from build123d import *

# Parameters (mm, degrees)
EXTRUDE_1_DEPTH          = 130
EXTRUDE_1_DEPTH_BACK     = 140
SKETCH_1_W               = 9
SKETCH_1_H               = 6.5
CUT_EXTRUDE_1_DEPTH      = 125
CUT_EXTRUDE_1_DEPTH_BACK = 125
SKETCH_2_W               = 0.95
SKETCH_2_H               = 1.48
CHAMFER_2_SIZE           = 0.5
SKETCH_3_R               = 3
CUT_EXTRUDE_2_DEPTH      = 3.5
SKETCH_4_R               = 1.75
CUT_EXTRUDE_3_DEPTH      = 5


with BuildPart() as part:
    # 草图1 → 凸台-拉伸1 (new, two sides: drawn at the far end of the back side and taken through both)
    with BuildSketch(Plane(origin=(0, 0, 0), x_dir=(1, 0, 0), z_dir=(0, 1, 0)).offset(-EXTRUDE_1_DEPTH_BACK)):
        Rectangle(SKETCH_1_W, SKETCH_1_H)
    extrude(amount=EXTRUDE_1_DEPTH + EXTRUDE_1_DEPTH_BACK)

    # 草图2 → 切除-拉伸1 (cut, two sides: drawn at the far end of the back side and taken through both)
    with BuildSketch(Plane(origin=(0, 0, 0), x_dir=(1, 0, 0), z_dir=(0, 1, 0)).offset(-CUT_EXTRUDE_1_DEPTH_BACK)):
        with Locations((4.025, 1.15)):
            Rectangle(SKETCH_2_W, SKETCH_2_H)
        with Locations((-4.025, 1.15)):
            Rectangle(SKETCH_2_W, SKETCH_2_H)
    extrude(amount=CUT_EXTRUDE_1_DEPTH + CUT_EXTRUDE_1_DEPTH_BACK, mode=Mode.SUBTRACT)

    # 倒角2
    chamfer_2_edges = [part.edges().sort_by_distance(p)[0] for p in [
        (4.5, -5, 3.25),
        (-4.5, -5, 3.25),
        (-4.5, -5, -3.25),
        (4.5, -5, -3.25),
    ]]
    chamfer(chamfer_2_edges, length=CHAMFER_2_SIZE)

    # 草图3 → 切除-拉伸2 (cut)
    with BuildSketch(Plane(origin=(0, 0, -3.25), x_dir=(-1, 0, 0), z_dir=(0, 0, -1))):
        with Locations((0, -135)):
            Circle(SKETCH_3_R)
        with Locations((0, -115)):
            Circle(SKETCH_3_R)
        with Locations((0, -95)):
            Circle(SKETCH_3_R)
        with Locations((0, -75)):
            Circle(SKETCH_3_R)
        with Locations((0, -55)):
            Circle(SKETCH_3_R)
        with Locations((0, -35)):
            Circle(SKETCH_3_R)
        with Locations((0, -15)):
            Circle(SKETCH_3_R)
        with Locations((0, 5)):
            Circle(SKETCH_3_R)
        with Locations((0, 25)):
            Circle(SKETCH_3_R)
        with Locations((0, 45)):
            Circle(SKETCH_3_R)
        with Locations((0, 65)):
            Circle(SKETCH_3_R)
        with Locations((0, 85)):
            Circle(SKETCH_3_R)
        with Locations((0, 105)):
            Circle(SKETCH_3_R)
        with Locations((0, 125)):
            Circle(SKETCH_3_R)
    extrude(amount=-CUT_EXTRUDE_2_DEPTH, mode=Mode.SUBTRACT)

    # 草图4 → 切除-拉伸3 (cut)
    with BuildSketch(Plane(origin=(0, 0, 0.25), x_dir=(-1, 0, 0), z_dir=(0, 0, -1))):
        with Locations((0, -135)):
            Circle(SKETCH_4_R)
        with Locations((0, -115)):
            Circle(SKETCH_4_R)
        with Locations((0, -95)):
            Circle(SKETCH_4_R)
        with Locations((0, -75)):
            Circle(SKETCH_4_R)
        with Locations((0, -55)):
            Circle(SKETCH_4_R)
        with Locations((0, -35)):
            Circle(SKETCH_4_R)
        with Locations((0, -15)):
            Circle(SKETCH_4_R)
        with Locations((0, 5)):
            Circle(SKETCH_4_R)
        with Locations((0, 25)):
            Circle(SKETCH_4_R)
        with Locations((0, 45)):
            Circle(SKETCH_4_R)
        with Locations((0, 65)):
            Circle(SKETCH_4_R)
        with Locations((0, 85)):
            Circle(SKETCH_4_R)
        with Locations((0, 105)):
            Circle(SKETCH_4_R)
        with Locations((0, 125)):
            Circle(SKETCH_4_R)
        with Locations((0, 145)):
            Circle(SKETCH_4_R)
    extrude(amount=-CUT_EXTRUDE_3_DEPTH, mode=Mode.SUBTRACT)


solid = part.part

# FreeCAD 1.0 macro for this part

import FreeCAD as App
import Part
import Sketcher


def edges_at(feature, points):
    """Names of the edges that pass closest to the given points."""
    edges = feature.Shape.Edges
    near = lambda p: min(range(len(edges)), key=lambda i: edges[i].distToShape(Part.Vertex(*p))[0])
    return sorted({f"Edge{near(p) + 1}" for p in points})


def add_polygon(sketch, points):
    """Adds a closed chain of lines whose ends are joined by coincident constraints."""
    first, n = sketch.GeometryCount, len(points)
    for a, b in zip(points, points[1:] + points[:1]):
        sketch.addGeometry(Part.LineSegment(App.Vector(*a, 0), App.Vector(*b, 0)), False)
    for i in range(n):
        sketch.addConstraint(Sketcher.Constraint("Coincident", first + i, 2, first + (i + 1) % n, 1))

doc = App.newDocument("Part")
body = doc.addObject("PartDesign::Body", "Body")

sketch1 = body.newObject("Sketcher::SketchObject", "Sketch")
sketch1.AttachmentSupport = (doc.getObject("XZ_Plane"), [""])
sketch1.MapMode = "FlatFace"
add_polygon(sketch1, [(-4, -3), (-4, 3), (4, 3), (4, -3)])
sketch1.addConstraint(Sketcher.Constraint("Vertical", 0))
sketch1.addConstraint(Sketcher.Constraint("Horizontal", 1))
sketch1.addConstraint(Sketcher.Constraint("Vertical", 2))
sketch1.addConstraint(Sketcher.Constraint("Horizontal", 3))
sketch1.addConstraint(Sketcher.Constraint("Symmetric", 0, 2, 2, 2, -1, 1))
sketch1.addConstraint(Sketcher.Constraint("DistanceX", 1, 1, 1, 2, 9.0))
sketch1.addConstraint(Sketcher.Constraint("DistanceY", 0, 1, 0, 2, 6.5))
pad1 = body.newObject("PartDesign::Pad", "Pad")
pad1.Profile = sketch1
pad1.Type = "TwoLengths"
pad1.Length = 130
pad1.Length2 = 140
pad1.Reversed = True

sketch2 = body.newObject("Sketcher::SketchObject", "Sketch001")
sketch2.AttachmentSupport = (doc.getObject("XZ_Plane"), [""])
sketch2.MapMode = "FlatFace"
add_polygon(sketch2, [(3.5, -1.9), (3.5, -0.4), (4.5, -0.4), (4.5, -1.9)])
add_polygon(sketch2, [(-4.5, -1.9), (-4.5, -0.4), (-3.5, -0.4), (-3.5, -1.9)])
sketch2.addConstraint(Sketcher.Constraint("Vertical", 0))
sketch2.addConstraint(Sketcher.Constraint("Horizontal", 1))
sketch2.addConstraint(Sketcher.Constraint("Vertical", 2))
sketch2.addConstraint(Sketcher.Constraint("Horizontal", 3))
sketch2.addConstraint(Sketcher.Constraint("Vertical", 4))
sketch2.addConstraint(Sketcher.Constraint("Horizontal", 5))
sketch2.addConstraint(Sketcher.Constraint("Vertical", 6))
sketch2.addConstraint(Sketcher.Constraint("Horizontal", 7))
sketch2.addConstraint(Sketcher.Constraint("Symmetric", 1, 2, 4, 2, -2))
sketch2.addConstraint(Sketcher.Constraint("Symmetric", 3, 2, 6, 2, -2))
sketch2.addConstraint(Sketcher.Constraint("DistanceX", 4, 2, 1, 2, 9.0))
sketch2.addConstraint(Sketcher.Constraint("DistanceX", 1, 1, 1, 2, 0.95))
sketch2.addConstraint(Sketcher.Constraint("DistanceY", 0, 1, 0, 2, 1.48))
sketch2.addConstraint(Sketcher.Constraint("DistanceY", 0, 2, -1, 1, 0.41))
pocket1 = body.newObject("PartDesign::Pocket", "Pocket")
pocket1.Profile = sketch2
pocket1.Type = "TwoLengths"
pocket1.Length = 125
pocket1.Length2 = 125
doc.recompute()

chamfer = body.newObject("PartDesign::Chamfer", "Chamfer")
chamfer.Base = (pocket1, edges_at(pocket1, [
    (4.5, -5, 3.25),
    (-4.5, -5, 3.25),
    (-4.5, -5, -3.25),
    (4.5, -5, -3.25),
]))
chamfer.Size = 0.5

sketch3 = body.newObject("Sketcher::SketchObject", "Sketch002")
sketch3.AttachmentSupport = (doc.getObject("XY_Plane"), [""])
sketch3.MapMode = "FlatFace"
sketch3.AttachmentOffset = App.Placement(App.Vector(0, 0, -3.25), App.Rotation())
sketch3.addGeometry(Part.Circle(App.Vector(0, -135, 0), App.Vector(0, 0, 1), 3), False)
sketch3.addGeometry(Part.Circle(App.Vector(0, -115, 0), App.Vector(0, 0, 1), 3), False)
sketch3.addGeometry(Part.Circle(App.Vector(0, -95, 0), App.Vector(0, 0, 1), 3), False)
sketch3.addGeometry(Part.Circle(App.Vector(0, -75, 0), App.Vector(0, 0, 1), 3), False)
sketch3.addGeometry(Part.Circle(App.Vector(0, -55, 0), App.Vector(0, 0, 1), 3), False)
sketch3.addGeometry(Part.Circle(App.Vector(0, -35, 0), App.Vector(0, 0, 1), 3), False)
sketch3.addGeometry(Part.Circle(App.Vector(0, -15, 0), App.Vector(0, 0, 1), 3), False)
sketch3.addGeometry(Part.Circle(App.Vector(0, 5, 0), App.Vector(0, 0, 1), 3), False)
sketch3.addGeometry(Part.Circle(App.Vector(0, 25, 0), App.Vector(0, 0, 1), 3), False)
sketch3.addGeometry(Part.Circle(App.Vector(0, 45, 0), App.Vector(0, 0, 1), 3), False)
sketch3.addGeometry(Part.Circle(App.Vector(0, 65, 0), App.Vector(0, 0, 1), 3), False)
sketch3.addGeometry(Part.Circle(App.Vector(0, 85, 0), App.Vector(0, 0, 1), 3), False)
sketch3.addGeometry(Part.Circle(App.Vector(0, 105, 0), App.Vector(0, 0, 1), 3), False)
sketch3.addGeometry(Part.Circle(App.Vector(0, 125, 0), App.Vector(0, 0, 1), 3), False)
sketch3.addConstraint(Sketcher.Constraint("Equal", 0, 1))
sketch3.addConstraint(Sketcher.Constraint("Equal", 1, 2))
sketch3.addConstraint(Sketcher.Constraint("Equal", 2, 3))
sketch3.addConstraint(Sketcher.Constraint("Equal", 3, 4))
sketch3.addConstraint(Sketcher.Constraint("Equal", 4, 5))
sketch3.addConstraint(Sketcher.Constraint("Equal", 5, 6))
sketch3.addConstraint(Sketcher.Constraint("Equal", 6, 7))
sketch3.addConstraint(Sketcher.Constraint("Equal", 7, 8))
sketch3.addConstraint(Sketcher.Constraint("Equal", 8, 9))
sketch3.addConstraint(Sketcher.Constraint("Equal", 9, 10))
sketch3.addConstraint(Sketcher.Constraint("Equal", 10, 11))
sketch3.addConstraint(Sketcher.Constraint("Equal", 11, 12))
sketch3.addConstraint(Sketcher.Constraint("Equal", 12, 13))
sketch3.addConstraint(Sketcher.Constraint("PointOnObject", 0, 3, -2))
sketch3.addConstraint(Sketcher.Constraint("PointOnObject", 1, 3, -2))
sketch3.addConstraint(Sketcher.Constraint("PointOnObject", 2, 3, -2))
sketch3.addConstraint(Sketcher.Constraint("PointOnObject", 3, 3, -2))
sketch3.addConstraint(Sketcher.Constraint("PointOnObject", 4, 3, -2))
sketch3.addConstraint(Sketcher.Constraint("PointOnObject", 5, 3, -2))
sketch3.addConstraint(Sketcher.Constraint("PointOnObject", 6, 3, -2))
sketch3.addConstraint(Sketcher.Constraint("PointOnObject", 7, 3, -2))
sketch3.addConstraint(Sketcher.Constraint("PointOnObject", 8, 3, -2))
sketch3.addConstraint(Sketcher.Constraint("PointOnObject", 9, 3, -2))
sketch3.addConstraint(Sketcher.Constraint("PointOnObject", 10, 3, -2))
sketch3.addConstraint(Sketcher.Constraint("PointOnObject", 11, 3, -2))
sketch3.addConstraint(Sketcher.Constraint("PointOnObject", 12, 3, -2))
sketch3.addConstraint(Sketcher.Constraint("PointOnObject", 13, 3, -2))
sketch3.addConstraint(Sketcher.Constraint("Diameter", 0, 6.0))
sketch3.addConstraint(Sketcher.Constraint("DistanceY", 0, 3, -1, 1, 135.0))
sketch3.addConstraint(Sketcher.Constraint("DistanceY", 1, 3, -1, 1, 115.0))
sketch3.addConstraint(Sketcher.Constraint("DistanceY", 2, 3, -1, 1, 95.0))
sketch3.addConstraint(Sketcher.Constraint("DistanceY", 3, 3, -1, 1, 75.0))
sketch3.addConstraint(Sketcher.Constraint("DistanceY", 4, 3, -1, 1, 55.0))
sketch3.addConstraint(Sketcher.Constraint("DistanceY", 5, 3, -1, 1, 35.0))
sketch3.addConstraint(Sketcher.Constraint("DistanceY", 6, 3, -1, 1, 15.0))
sketch3.addConstraint(Sketcher.Constraint("DistanceY", -1, 1, 7, 3, 5.0))
sketch3.addConstraint(Sketcher.Constraint("DistanceY", -1, 1, 8, 3, 25.0))
sketch3.addConstraint(Sketcher.Constraint("DistanceY", -1, 1, 9, 3, 45.0))
sketch3.addConstraint(Sketcher.Constraint("DistanceY", -1, 1, 10, 3, 65.0))
sketch3.addConstraint(Sketcher.Constraint("DistanceY", -1, 1, 11, 3, 85.0))
sketch3.addConstraint(Sketcher.Constraint("DistanceY", -1, 1, 12, 3, 105.0))
sketch3.addConstraint(Sketcher.Constraint("DistanceY", -1, 1, 13, 3, 125.0))
pocket2 = body.newObject("PartDesign::Pocket", "Pocket001")
pocket2.Profile = sketch3
pocket2.Length = 3.5
pocket2.Reversed = True

sketch4 = body.newObject("Sketcher::SketchObject", "Sketch003")
sketch4.AttachmentSupport = (doc.getObject("XY_Plane"), [""])
sketch4.MapMode = "FlatFace"
sketch4.AttachmentOffset = App.Placement(App.Vector(0, 0, 0.25), App.Rotation())
sketch4.addGeometry(Part.Circle(App.Vector(0, -135, 0), App.Vector(0, 0, 1), 1.8), False)
sketch4.addGeometry(Part.Circle(App.Vector(0, -115, 0), App.Vector(0, 0, 1), 1.8), False)
sketch4.addGeometry(Part.Circle(App.Vector(0, -95, 0), App.Vector(0, 0, 1), 1.8), False)
sketch4.addGeometry(Part.Circle(App.Vector(0, -75, 0), App.Vector(0, 0, 1), 1.8), False)
sketch4.addGeometry(Part.Circle(App.Vector(0, -55, 0), App.Vector(0, 0, 1), 1.8), False)
sketch4.addGeometry(Part.Circle(App.Vector(0, -35, 0), App.Vector(0, 0, 1), 1.8), False)
sketch4.addGeometry(Part.Circle(App.Vector(0, -15, 0), App.Vector(0, 0, 1), 1.8), False)
sketch4.addGeometry(Part.Circle(App.Vector(0, 5, 0), App.Vector(0, 0, 1), 1.8), False)
sketch4.addGeometry(Part.Circle(App.Vector(0, 25, 0), App.Vector(0, 0, 1), 1.8), False)
sketch4.addGeometry(Part.Circle(App.Vector(0, 45, 0), App.Vector(0, 0, 1), 1.8), False)
sketch4.addGeometry(Part.Circle(App.Vector(0, 65, 0), App.Vector(0, 0, 1), 1.8), False)
sketch4.addGeometry(Part.Circle(App.Vector(0, 85, 0), App.Vector(0, 0, 1), 1.8), False)
sketch4.addGeometry(Part.Circle(App.Vector(0, 105, 0), App.Vector(0, 0, 1), 1.8), False)
sketch4.addGeometry(Part.Circle(App.Vector(0, 125, 0), App.Vector(0, 0, 1), 1.8), False)
sketch4.addGeometry(Part.Circle(App.Vector(0, 145, 0), App.Vector(0, 0, 1), 1.8), False)
sketch4.addConstraint(Sketcher.Constraint("Equal", 0, 1))
sketch4.addConstraint(Sketcher.Constraint("Equal", 1, 2))
sketch4.addConstraint(Sketcher.Constraint("Equal", 2, 3))
sketch4.addConstraint(Sketcher.Constraint("Equal", 3, 4))
sketch4.addConstraint(Sketcher.Constraint("Equal", 4, 5))
sketch4.addConstraint(Sketcher.Constraint("Equal", 5, 6))
sketch4.addConstraint(Sketcher.Constraint("Equal", 6, 7))
sketch4.addConstraint(Sketcher.Constraint("Equal", 7, 8))
sketch4.addConstraint(Sketcher.Constraint("Equal", 8, 9))
sketch4.addConstraint(Sketcher.Constraint("Equal", 9, 10))
sketch4.addConstraint(Sketcher.Constraint("Equal", 10, 11))
sketch4.addConstraint(Sketcher.Constraint("Equal", 11, 12))
sketch4.addConstraint(Sketcher.Constraint("Equal", 12, 13))
sketch4.addConstraint(Sketcher.Constraint("Equal", 13, 14))
sketch4.addConstraint(Sketcher.Constraint("PointOnObject", 0, 3, -2))
sketch4.addConstraint(Sketcher.Constraint("PointOnObject", 1, 3, -2))
sketch4.addConstraint(Sketcher.Constraint("PointOnObject", 2, 3, -2))
sketch4.addConstraint(Sketcher.Constraint("PointOnObject", 3, 3, -2))
sketch4.addConstraint(Sketcher.Constraint("PointOnObject", 4, 3, -2))
sketch4.addConstraint(Sketcher.Constraint("PointOnObject", 5, 3, -2))
sketch4.addConstraint(Sketcher.Constraint("PointOnObject", 6, 3, -2))
sketch4.addConstraint(Sketcher.Constraint("PointOnObject", 7, 3, -2))
sketch4.addConstraint(Sketcher.Constraint("PointOnObject", 8, 3, -2))
sketch4.addConstraint(Sketcher.Constraint("PointOnObject", 9, 3, -2))
sketch4.addConstraint(Sketcher.Constraint("PointOnObject", 10, 3, -2))
sketch4.addConstraint(Sketcher.Constraint("PointOnObject", 11, 3, -2))
sketch4.addConstraint(Sketcher.Constraint("PointOnObject", 12, 3, -2))
sketch4.addConstraint(Sketcher.Constraint("PointOnObject", 13, 3, -2))
sketch4.addConstraint(Sketcher.Constraint("PointOnObject", 14, 3, -2))
sketch4.addConstraint(Sketcher.Constraint("Diameter", 0, 3.5))
sketch4.addConstraint(Sketcher.Constraint("DistanceY", 0, 3, -1, 1, 135.0))
sketch4.addConstraint(Sketcher.Constraint("DistanceY", 1, 3, -1, 1, 115.0))
sketch4.addConstraint(Sketcher.Constraint("DistanceY", 2, 3, -1, 1, 95.0))
sketch4.addConstraint(Sketcher.Constraint("DistanceY", 3, 3, -1, 1, 75.0))
sketch4.addConstraint(Sketcher.Constraint("DistanceY", 4, 3, -1, 1, 55.0))
sketch4.addConstraint(Sketcher.Constraint("DistanceY", 5, 3, -1, 1, 35.0))
sketch4.addConstraint(Sketcher.Constraint("DistanceY", 6, 3, -1, 1, 15.0))
sketch4.addConstraint(Sketcher.Constraint("DistanceY", -1, 1, 7, 3, 5.0))
sketch4.addConstraint(Sketcher.Constraint("DistanceY", -1, 1, 8, 3, 25.0))
sketch4.addConstraint(Sketcher.Constraint("DistanceY", -1, 1, 9, 3, 45.0))
sketch4.addConstraint(Sketcher.Constraint("DistanceY", -1, 1, 10, 3, 65.0))
sketch4.addConstraint(Sketcher.Constraint("DistanceY", -1, 1, 11, 3, 85.0))
sketch4.addConstraint(Sketcher.Constraint("DistanceY", -1, 1, 12, 3, 105.0))
sketch4.addConstraint(Sketcher.Constraint("DistanceY", -1, 1, 13, 3, 125.0))
sketch4.addConstraint(Sketcher.Constraint("DistanceY", -1, 1, 14, 3, 145.0))
pocket3 = body.newObject("PartDesign::Pocket", "Pocket002")
pocket3.Profile = sketch4
pocket3.Length = 5
pocket3.Reversed = True

doc.recompute()
